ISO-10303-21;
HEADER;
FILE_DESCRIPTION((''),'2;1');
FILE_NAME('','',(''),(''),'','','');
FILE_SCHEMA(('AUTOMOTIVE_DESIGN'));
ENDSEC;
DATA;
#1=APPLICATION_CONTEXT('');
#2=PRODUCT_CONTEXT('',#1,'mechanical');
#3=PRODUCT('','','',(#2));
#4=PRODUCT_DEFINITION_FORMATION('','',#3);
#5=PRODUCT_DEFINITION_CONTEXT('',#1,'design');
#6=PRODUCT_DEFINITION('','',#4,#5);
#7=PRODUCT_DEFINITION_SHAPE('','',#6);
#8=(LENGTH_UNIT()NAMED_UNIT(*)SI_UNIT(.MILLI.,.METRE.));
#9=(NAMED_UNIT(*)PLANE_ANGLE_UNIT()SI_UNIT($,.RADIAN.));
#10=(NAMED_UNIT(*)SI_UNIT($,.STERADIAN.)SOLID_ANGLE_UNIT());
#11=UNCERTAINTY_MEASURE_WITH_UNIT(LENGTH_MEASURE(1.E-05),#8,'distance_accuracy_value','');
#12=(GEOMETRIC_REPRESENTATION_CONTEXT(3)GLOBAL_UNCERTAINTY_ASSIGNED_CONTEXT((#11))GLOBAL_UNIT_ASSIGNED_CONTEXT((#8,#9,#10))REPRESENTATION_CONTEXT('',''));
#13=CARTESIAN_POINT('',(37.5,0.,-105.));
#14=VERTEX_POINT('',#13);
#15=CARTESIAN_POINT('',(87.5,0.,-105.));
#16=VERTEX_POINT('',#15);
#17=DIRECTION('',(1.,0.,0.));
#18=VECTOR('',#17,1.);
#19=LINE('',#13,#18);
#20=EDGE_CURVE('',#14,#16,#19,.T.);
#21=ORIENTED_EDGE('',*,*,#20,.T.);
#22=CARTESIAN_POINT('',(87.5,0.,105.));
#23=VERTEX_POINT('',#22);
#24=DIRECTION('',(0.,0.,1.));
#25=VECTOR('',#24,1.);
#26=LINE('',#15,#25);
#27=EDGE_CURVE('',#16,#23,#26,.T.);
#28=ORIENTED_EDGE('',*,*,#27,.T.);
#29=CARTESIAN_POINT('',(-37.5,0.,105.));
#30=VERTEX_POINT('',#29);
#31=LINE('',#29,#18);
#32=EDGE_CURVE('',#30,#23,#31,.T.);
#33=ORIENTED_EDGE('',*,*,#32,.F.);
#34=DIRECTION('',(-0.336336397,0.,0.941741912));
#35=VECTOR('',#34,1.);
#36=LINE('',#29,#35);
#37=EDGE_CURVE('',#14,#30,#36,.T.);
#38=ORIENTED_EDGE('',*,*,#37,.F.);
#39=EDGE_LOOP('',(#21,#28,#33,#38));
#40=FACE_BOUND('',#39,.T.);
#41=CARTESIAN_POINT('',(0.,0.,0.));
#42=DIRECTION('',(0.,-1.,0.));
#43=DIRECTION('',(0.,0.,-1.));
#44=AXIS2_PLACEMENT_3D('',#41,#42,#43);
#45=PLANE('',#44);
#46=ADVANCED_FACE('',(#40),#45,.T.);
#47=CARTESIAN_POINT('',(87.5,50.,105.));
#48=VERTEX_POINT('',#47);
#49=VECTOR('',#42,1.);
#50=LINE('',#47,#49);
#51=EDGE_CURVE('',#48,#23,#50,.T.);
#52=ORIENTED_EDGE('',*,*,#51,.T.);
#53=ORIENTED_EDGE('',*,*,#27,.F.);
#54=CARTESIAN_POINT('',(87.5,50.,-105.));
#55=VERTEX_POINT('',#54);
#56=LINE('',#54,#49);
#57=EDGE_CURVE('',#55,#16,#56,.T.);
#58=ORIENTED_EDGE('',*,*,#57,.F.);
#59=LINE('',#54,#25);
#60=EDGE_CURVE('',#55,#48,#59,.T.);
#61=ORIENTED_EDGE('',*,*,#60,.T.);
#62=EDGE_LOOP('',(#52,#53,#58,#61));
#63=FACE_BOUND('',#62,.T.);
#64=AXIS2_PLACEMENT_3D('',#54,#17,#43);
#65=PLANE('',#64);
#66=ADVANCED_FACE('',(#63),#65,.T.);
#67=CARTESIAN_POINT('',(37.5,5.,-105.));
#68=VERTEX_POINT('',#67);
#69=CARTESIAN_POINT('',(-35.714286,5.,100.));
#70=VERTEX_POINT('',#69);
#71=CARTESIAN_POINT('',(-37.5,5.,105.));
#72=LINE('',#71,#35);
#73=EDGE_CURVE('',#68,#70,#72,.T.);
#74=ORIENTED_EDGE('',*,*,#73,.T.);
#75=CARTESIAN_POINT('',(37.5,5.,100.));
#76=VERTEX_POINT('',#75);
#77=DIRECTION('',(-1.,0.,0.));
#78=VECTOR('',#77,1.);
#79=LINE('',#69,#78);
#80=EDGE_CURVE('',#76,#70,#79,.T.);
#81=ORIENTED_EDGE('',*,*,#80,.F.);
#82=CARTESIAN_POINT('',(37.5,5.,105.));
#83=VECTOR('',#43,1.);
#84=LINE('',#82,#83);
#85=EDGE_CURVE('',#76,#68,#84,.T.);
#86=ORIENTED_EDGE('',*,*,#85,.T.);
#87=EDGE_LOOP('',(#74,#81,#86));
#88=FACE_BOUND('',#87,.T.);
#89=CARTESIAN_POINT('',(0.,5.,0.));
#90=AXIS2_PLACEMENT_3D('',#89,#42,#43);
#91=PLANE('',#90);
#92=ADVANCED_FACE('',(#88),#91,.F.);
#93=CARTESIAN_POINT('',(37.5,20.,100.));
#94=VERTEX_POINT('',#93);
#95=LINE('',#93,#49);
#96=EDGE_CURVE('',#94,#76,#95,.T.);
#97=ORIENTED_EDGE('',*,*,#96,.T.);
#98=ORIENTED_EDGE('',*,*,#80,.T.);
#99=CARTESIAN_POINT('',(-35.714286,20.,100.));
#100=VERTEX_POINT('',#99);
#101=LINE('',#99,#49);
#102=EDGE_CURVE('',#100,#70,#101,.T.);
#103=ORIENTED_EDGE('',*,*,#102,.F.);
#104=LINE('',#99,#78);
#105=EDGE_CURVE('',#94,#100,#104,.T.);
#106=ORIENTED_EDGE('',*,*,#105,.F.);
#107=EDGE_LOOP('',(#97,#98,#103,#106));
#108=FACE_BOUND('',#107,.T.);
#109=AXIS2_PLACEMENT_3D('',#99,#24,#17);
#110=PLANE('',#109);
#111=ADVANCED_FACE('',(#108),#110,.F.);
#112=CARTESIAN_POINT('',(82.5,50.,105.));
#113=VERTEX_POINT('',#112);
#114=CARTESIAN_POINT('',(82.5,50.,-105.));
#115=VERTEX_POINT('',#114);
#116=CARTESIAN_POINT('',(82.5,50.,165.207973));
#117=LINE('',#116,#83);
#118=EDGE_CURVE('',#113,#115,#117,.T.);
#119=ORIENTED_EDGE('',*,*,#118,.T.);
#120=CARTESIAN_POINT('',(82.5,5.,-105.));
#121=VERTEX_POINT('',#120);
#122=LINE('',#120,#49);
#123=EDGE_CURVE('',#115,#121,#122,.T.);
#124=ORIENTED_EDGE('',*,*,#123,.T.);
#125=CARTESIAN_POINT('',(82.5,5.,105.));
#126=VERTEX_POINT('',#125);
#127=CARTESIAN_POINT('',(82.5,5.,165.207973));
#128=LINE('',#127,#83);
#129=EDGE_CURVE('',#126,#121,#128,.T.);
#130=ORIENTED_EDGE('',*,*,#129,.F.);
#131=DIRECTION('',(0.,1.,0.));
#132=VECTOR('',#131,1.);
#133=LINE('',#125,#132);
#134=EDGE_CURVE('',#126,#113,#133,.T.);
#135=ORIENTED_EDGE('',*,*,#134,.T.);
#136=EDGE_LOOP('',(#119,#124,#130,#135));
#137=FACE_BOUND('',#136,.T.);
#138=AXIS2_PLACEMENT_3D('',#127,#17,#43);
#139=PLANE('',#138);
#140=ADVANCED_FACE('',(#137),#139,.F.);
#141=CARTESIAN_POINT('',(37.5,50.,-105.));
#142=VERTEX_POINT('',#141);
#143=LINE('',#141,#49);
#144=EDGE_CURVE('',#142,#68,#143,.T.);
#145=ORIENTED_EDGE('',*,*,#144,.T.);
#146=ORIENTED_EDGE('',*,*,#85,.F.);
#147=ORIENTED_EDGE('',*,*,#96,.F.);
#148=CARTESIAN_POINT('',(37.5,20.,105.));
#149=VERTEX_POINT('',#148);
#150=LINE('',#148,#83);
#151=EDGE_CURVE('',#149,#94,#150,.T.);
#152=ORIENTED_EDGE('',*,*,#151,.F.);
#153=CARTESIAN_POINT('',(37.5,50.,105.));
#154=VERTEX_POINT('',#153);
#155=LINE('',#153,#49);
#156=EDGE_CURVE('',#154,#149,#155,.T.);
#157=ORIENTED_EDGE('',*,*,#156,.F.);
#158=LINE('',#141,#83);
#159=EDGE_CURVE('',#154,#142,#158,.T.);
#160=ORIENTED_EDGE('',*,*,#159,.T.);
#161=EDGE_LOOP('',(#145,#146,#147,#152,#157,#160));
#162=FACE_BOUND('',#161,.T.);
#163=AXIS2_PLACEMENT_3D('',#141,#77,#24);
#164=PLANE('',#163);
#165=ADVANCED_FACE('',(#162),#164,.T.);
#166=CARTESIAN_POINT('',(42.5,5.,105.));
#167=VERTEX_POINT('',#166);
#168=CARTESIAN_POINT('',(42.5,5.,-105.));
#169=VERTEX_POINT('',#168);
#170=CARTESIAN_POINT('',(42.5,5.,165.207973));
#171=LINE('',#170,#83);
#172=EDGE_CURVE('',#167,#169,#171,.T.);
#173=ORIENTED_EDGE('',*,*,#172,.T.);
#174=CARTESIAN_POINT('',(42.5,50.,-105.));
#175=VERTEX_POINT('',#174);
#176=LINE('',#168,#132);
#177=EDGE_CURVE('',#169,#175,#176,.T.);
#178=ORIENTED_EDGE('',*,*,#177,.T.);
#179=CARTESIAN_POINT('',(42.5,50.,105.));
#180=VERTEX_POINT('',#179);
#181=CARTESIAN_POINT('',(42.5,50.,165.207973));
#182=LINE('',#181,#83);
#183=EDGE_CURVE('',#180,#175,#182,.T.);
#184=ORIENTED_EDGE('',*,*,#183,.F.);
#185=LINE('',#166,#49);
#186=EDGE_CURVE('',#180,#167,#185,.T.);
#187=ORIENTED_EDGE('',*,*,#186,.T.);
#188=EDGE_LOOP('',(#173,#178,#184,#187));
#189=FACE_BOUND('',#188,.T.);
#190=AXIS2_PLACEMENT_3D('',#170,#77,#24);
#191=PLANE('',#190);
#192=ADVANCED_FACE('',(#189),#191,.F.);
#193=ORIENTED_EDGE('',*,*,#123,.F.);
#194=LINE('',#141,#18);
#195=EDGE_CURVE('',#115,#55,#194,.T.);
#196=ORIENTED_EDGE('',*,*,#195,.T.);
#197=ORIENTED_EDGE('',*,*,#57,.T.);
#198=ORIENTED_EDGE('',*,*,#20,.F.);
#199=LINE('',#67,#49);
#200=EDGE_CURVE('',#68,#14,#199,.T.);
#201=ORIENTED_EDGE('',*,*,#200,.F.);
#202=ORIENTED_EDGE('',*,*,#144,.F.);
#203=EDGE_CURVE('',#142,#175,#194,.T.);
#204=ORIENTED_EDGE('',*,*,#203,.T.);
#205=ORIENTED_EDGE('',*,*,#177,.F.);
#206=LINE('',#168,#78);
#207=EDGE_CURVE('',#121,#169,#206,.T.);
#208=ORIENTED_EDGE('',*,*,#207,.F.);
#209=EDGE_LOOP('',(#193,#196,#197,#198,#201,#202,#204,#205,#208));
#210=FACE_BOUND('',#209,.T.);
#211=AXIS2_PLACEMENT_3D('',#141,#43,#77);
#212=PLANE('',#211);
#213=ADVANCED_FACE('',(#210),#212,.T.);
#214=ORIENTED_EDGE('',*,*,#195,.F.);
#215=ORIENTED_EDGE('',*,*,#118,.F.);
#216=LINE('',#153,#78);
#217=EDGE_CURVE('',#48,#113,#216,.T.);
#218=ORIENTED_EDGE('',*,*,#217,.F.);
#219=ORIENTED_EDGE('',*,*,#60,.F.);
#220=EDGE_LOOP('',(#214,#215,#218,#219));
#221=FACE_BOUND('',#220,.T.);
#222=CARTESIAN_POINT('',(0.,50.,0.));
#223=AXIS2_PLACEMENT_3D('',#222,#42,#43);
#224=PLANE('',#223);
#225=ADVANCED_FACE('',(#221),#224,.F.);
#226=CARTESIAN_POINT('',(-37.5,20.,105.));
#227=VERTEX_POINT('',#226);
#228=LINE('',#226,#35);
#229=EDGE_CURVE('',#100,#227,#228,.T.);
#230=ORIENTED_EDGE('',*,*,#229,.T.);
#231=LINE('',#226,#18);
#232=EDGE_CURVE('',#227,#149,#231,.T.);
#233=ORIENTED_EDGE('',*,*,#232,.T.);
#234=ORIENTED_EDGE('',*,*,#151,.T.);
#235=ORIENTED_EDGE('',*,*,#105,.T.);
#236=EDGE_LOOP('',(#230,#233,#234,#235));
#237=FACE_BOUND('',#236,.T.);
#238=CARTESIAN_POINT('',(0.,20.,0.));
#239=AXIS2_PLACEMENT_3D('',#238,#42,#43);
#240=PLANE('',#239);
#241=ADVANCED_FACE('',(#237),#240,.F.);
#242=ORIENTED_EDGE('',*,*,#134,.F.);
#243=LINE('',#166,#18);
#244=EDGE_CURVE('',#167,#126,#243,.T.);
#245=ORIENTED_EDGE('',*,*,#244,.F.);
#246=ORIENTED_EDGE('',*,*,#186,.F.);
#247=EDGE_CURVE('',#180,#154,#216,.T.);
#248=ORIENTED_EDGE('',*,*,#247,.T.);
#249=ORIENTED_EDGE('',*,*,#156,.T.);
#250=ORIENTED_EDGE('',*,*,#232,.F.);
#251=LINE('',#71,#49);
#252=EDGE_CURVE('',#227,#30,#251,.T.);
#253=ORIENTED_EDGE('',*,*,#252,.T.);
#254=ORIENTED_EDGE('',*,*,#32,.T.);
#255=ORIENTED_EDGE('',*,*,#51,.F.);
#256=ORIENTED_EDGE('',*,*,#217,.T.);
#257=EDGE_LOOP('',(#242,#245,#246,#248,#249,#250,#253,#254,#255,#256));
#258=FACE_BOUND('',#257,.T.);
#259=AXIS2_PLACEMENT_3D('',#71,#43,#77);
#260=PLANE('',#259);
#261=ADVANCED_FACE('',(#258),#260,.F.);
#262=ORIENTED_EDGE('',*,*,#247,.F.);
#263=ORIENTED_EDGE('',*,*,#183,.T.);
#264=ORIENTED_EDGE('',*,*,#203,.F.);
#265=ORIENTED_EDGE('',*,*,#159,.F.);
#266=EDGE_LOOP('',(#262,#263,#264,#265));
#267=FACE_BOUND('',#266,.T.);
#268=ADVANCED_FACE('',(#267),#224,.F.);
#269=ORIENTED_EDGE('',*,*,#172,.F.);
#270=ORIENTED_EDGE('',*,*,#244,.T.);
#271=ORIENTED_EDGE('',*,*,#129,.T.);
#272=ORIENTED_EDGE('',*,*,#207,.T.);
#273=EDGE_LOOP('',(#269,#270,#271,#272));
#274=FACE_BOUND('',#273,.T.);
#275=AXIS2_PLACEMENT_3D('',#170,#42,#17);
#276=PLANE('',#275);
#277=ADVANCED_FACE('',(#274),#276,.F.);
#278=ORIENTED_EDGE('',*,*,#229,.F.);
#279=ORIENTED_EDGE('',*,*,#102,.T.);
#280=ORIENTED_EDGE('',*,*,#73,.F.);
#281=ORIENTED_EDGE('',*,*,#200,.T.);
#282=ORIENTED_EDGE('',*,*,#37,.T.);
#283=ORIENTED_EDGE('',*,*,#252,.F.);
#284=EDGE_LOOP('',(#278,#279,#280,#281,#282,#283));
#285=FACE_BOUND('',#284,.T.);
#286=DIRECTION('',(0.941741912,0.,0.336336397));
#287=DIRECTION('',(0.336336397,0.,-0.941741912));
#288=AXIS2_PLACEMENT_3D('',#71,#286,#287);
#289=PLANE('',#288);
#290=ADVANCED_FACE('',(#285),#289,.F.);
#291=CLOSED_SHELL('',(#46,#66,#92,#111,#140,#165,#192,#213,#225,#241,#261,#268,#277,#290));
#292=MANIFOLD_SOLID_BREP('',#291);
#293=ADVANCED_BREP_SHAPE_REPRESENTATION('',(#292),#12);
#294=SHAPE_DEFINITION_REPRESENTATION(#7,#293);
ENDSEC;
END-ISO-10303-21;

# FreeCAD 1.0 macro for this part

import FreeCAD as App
import Part
import Sketcher
from FreeCAD import Vector
Q = App.Units.Quantity

doc = App.newDocument("Part")
params = doc.addObject("Spreadsheet::Sheet", "Params")
for row, (alias, value) in enumerate([
    ("sketch1_width", "75 mm"),
    ("sketch1_height", "210 mm"),
    ("pad1_length", "5 mm"),
    ("sketch2_width", "75 mm"),
    ("sketch2_height", "5 mm"),
    ("pad2_length", "15 mm"),
    ("sketch3_width", "50 mm"),
    ("sketch3_height", "210 mm"),
    ("pad3_length", "50 mm"),
    ("sketch4_width", "40 mm"),
    ("sketch4_height", "45 mm"),
    ("pocket1_length", "210 mm"),
], start=1):
    params.set(f"A{row}", alias)
    params.set(f"B{row}", "=" + value)
    params.setAlias(f"B{row}", alias)

body = doc.addObject("PartDesign::Body", "Body")

# Sketch on XZ plane
sketch1 = doc.addObject("Sketcher::SketchObject", "Sketch")
body.addObject(sketch1)
sketch1.AttachmentSupport = (doc.XZ_Plane, [""])
sketch1.MapMode = "FlatFace"
sketch1.addGeometry([
    Part.LineSegment(Vector(38, -105, 0), Vector(-38, 105, 0)),
    Part.LineSegment(Vector(-38, 105, 0), Vector(38, 105, 0)),
    Part.LineSegment(Vector(38, 105, 0), Vector(38, -105, 0)),
], False)
sketch1.addConstraint([
    Sketcher.Constraint("Coincident", 0, 2, 1, 1),
    Sketcher.Constraint("Coincident", 1, 2, 2, 1),
    Sketcher.Constraint("Coincident", 2, 2, 0, 1),
    Sketcher.Constraint("Horizontal", 1),
    Sketcher.Constraint("Vertical", 2),
    Sketcher.Constraint("Symmetric", 0, 2, 2, 2, -1, 1),
    Sketcher.Constraint("DistanceX", 1, 1, 1, 2, Q("75 mm")),
    Sketcher.Constraint("DistanceY", 2, 2, 2, 1, Q("210 mm")),
])
sketch1.setExpression("Constraints[6]", "Params.sketch1_width")
sketch1.setExpression("Constraints[7]", "Params.sketch1_height")
pad1 = doc.addObject("PartDesign::Pad", "Pad")
body.addObject(pad1)
pad1.Profile = sketch1
pad1.setExpression("Length", "Params.pad1_length")
pad1.Reversed = True

# Sketch on XZ plane
sketch2 = doc.addObject("Sketcher::SketchObject", "Sketch001")
body.addObject(sketch2)
sketch2.AttachmentSupport = (doc.XZ_Plane, [""])
sketch2.MapMode = "FlatFace"
sketch2.AttachmentOffset = App.Placement(Vector(0, 0, -5), App.Rotation())
sketch2.addGeometry([
    Part.LineSegment(Vector(-38, 105, 0), Vector(38, 105, 0)),
    Part.LineSegment(Vector(38, 105, 0), Vector(38, 100, 0)),
    Part.LineSegment(Vector(38, 100, 0), Vector(-36, 100, 0)),
    Part.LineSegment(Vector(-36, 100, 0), Vector(-38, 105, 0)),
], False)
sketch2.addConstraint([
    Sketcher.Constraint("Coincident", 0, 2, 1, 1),
    Sketcher.Constraint("Coincident", 1, 2, 2, 1),
    Sketcher.Constraint("Coincident", 2, 2, 3, 1),
    Sketcher.Constraint("Coincident", 3, 2, 0, 1),
    Sketcher.Constraint("Horizontal", 0),
    Sketcher.Constraint("Vertical", 1),
    Sketcher.Constraint("Horizontal", 2),
    Sketcher.Constraint("DistanceX", 0, 1, 0, 2, Q("75 mm")),
    Sketcher.Constraint("DistanceY", 1, 2, 1, 1, Q("5 mm")),
    Sketcher.Constraint("DistanceY", -1, 1, 0, 2, Q("105 mm")),
    Sketcher.Constraint("DistanceX", -1, 1, 0, 2, Q("37.5 mm")),
    Sketcher.Constraint("Distance", 3, Q("5.30931 mm")),
])
sketch2.setExpression("Constraints[7]", "Params.sketch2_width")
sketch2.setExpression("Constraints[8]", "Params.sketch2_height")
pad2 = doc.addObject("PartDesign::Pad", "Pad001")
body.addObject(pad2)
pad2.Profile = sketch2
pad2.setExpression("Length", "Params.pad2_length")
pad2.Reversed = True

# Sketch on XZ plane
sketch3 = doc.addObject("Sketcher::SketchObject", "Sketch002")
body.addObject(sketch3)
sketch3.AttachmentSupport = (doc.XZ_Plane, [""])
sketch3.MapMode = "FlatFace"
sketch3.addGeometry([
    Part.LineSegment(Vector(38, 105, 0), Vector(38, -105, 0)),
    Part.LineSegment(Vector(38, -105, 0), Vector(88, -105, 0)),
    Part.LineSegment(Vector(88, -105, 0), Vector(88, 105, 0)),
    Part.LineSegment(Vector(88, 105, 0), Vector(38, 105, 0)),
], False)
sketch3.addConstraint([
    Sketcher.Constraint("Coincident", 0, 2, 1, 1),
    Sketcher.Constraint("Coincident", 1, 2, 2, 1),
    Sketcher.Constraint("Coincident", 2, 2, 3, 1),
    Sketcher.Constraint("Coincident", 3, 2, 0, 1),
    Sketcher.Constraint("Vertical", 0),
    Sketcher.Constraint("Horizontal", 1),
    Sketcher.Constraint("Vertical", 2),
    Sketcher.Constraint("Horizontal", 3),
    Sketcher.Constraint("DistanceX", 1, 1, 1, 2, Q("50 mm")),
    Sketcher.Constraint("DistanceY", 0, 2, 0, 1, Q("210 mm")),
    Sketcher.Constraint("DistanceY", 0, 2, -1, 1, Q("105 mm")),
    Sketcher.Constraint("DistanceX", -1, 1, 0, 2, Q("37.5 mm")),
])
sketch3.setExpression("Constraints[8]", "Params.sketch3_width")
sketch3.setExpression("Constraints[9]", "Params.sketch3_height")
pad3 = doc.addObject("PartDesign::Pad", "Pad002")
body.addObject(pad3)
pad3.Profile = sketch3
pad3.setExpression("Length", "Params.pad3_length")
pad3.Reversed = True

# Sketch on XY plane
sketch4 = doc.addObject("Sketcher::SketchObject", "Sketch003")
body.addObject(sketch4)
sketch4.AttachmentSupport = (doc.XY_Plane, [""])
sketch4.MapMode = "FlatFace"
sketch4.AttachmentOffset = App.Placement(Vector(0, 0, -105), App.Rotation())
sketch4.addGeometry([
    Part.LineSegment(Vector(82, 50, 0), Vector(82, 5, 0)),
    Part.LineSegment(Vector(82, 5, 0), Vector(42, 5, 0)),
    Part.LineSegment(Vector(42, 5, 0), Vector(42, 50, 0)),
    Part.LineSegment(Vector(42, 50, 0), Vector(82, 50, 0)),
], False)
sketch4.addConstraint([
    Sketcher.Constraint("Coincident", 0, 2, 1, 1),
    Sketcher.Constraint("Coincident", 1, 2, 2, 1),
    Sketcher.Constraint("Coincident", 2, 2, 3, 1),
    Sketcher.Constraint("Coincident", 3, 2, 0, 1),
    Sketcher.Constraint("Vertical", 0),
    Sketcher.Constraint("Horizontal", 1),
    Sketcher.Constraint("Vertical", 2),
    Sketcher.Constraint("Horizontal", 3),
    Sketcher.Constraint("DistanceX", 1, 2, 1, 1, Q("40 mm")),
    Sketcher.Constraint("DistanceY", 0, 2, 0, 1, Q("45 mm")),
    Sketcher.Constraint("DistanceY", -1, 1, 0, 2, Q("5 mm")),
    Sketcher.Constraint("DistanceX", -1, 1, 0, 2, Q("82.5 mm")),
])
sketch4.setExpression("Constraints[8]", "Params.sketch4_width")
sketch4.setExpression("Constraints[9]", "Params.sketch4_height")
pocket1 = doc.addObject("PartDesign::Pocket", "Pocket")
body.addObject(pocket1)
pocket1.Profile = sketch4
pocket1.setExpression("Length", "Params.pocket1_length")
pocket1.Reversed = True

doc.recompute()
